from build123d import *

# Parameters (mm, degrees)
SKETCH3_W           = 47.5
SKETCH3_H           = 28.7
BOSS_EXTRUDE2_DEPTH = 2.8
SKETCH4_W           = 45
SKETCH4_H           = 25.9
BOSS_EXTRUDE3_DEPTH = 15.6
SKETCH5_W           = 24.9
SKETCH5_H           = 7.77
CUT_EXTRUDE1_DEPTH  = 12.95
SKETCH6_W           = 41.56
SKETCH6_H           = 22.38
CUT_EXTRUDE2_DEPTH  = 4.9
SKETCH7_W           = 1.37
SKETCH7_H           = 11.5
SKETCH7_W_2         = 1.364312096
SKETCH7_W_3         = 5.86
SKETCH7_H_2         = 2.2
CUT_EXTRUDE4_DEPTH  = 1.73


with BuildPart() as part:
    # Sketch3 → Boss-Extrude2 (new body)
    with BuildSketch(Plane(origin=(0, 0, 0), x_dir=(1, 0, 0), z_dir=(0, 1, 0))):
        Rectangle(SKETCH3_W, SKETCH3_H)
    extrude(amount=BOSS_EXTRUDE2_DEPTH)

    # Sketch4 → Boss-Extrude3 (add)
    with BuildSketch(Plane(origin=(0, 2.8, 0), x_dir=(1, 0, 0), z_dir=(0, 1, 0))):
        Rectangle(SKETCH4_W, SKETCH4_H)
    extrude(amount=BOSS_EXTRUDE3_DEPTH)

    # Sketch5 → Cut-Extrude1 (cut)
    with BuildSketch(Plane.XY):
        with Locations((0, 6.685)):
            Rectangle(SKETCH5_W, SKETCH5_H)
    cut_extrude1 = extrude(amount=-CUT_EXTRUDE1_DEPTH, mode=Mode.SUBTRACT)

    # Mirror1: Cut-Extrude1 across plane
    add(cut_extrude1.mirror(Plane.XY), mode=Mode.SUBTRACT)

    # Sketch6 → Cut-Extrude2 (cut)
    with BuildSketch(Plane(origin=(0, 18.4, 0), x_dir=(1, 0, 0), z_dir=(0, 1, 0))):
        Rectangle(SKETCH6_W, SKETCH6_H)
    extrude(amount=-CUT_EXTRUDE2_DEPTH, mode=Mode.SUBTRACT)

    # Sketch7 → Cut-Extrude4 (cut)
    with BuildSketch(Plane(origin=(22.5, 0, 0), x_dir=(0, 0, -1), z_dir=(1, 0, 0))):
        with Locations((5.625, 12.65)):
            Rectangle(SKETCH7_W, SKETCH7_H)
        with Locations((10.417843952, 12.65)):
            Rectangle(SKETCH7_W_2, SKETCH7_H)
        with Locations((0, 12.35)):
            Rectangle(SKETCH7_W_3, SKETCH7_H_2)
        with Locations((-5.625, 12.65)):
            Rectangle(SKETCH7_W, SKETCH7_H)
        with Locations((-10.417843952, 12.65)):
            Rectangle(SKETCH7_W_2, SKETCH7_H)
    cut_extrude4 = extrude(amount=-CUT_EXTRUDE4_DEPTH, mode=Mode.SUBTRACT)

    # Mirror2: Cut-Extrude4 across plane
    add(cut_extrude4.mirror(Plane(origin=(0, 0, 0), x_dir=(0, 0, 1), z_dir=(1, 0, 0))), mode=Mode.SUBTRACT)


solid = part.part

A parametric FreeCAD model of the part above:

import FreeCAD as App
import Part
import Sketcher

doc = App.newDocument("Part")
body = doc.addObject("PartDesign::Body", "Body")

sketch1 = body.newObject("Sketcher::SketchObject", "Sketch")
sketch1.AttachmentSupport = (doc.getObject("XZ_Plane"), [""])
sketch1.MapMode = "FlatFace"
sketch1.addGeometry([
    Part.LineSegment(App.Vector(-24, -14, 0), App.Vector(-24, 14, 0)),
    Part.LineSegment(App.Vector(-24, 14, 0), App.Vector(24, 14, 0)),
    Part.LineSegment(App.Vector(24, 14, 0), App.Vector(24, -14, 0)),
    Part.LineSegment(App.Vector(24, -14, 0), App.Vector(-24, -14, 0)),
], False)
sketch1.addConstraint([
    Sketcher.Constraint("Coincident", 0, 2, 1, 1),
    Sketcher.Constraint("Coincident", 1, 2, 2, 1),
    Sketcher.Constraint("Coincident", 2, 2, 3, 1),
    Sketcher.Constraint("Coincident", 3, 2, 0, 1),
    Sketcher.Constraint("Vertical", 0),
    Sketcher.Constraint("Horizontal", 1),
    Sketcher.Constraint("Vertical", 2),
    Sketcher.Constraint("Horizontal", 3),
    Sketcher.Constraint("Symmetric", 0, 2, 2, 2, -1, 1),
    Sketcher.Constraint("DistanceX", 1, 1, 1, 2, 47.5),
    Sketcher.Constraint("DistanceY", 0, 1, 0, 2, 28.7),
])
pad1 = body.newObject("PartDesign::Pad", "Pad")
pad1.Profile = sketch1
pad1.Length = 2.8
pad1.Reversed = True

sketch2 = body.newObject("Sketcher::SketchObject", "Sketch001")
sketch2.AttachmentSupport = (doc.getObject("XZ_Plane"), [""])
sketch2.MapMode = "FlatFace"
sketch2.AttachmentOffset = App.Placement(App.Vector(0, 0, -2.8), App.Rotation())
sketch2.addGeometry([
    Part.LineSegment(App.Vector(-22, -13, 0), App.Vector(-22, 13, 0)),
    Part.LineSegment(App.Vector(-22, 13, 0), App.Vector(22, 13, 0)),
    Part.LineSegment(App.Vector(22, 13, 0), App.Vector(22, -13, 0)),
    Part.LineSegment(App.Vector(22, -13, 0), App.Vector(-22, -13, 0)),
], False)
sketch2.addConstraint([
    Sketcher.Constraint("Coincident", 0, 2, 1, 1),
    Sketcher.Constraint("Coincident", 1, 2, 2, 1),
    Sketcher.Constraint("Coincident", 2, 2, 3, 1),
    Sketcher.Constraint("Coincident", 3, 2, 0, 1),
    Sketcher.Constraint("Vertical", 0),
    Sketcher.Constraint("Horizontal", 1),
    Sketcher.Constraint("Vertical", 2),
    Sketcher.Constraint("Horizontal", 3),
    Sketcher.Constraint("Symmetric", 0, 2, 2, 2, -1, 1),
    Sketcher.Constraint("DistanceX", 1, 1, 1, 2, 45.0),
    Sketcher.Constraint("DistanceY", 0, 1, 0, 2, 25.9),
])
pad2 = body.newObject("PartDesign::Pad", "Pad001")
pad2.Profile = sketch2
pad2.Length = 15.6
pad2.Reversed = True

sketch3 = body.newObject("Sketcher::SketchObject", "Sketch002")
sketch3.AttachmentSupport = (doc.getObject("XY_Plane"), [""])
sketch3.MapMode = "FlatFace"
sketch3.addGeometry([
    Part.LineSegment(App.Vector(-12, 11, 0), App.Vector(-12, 3, 0)),
    Part.LineSegment(App.Vector(-12, 3, 0), App.Vector(12, 3, 0)),
    Part.LineSegment(App.Vector(12, 3, 0), App.Vector(12, 11, 0)),
    Part.LineSegment(App.Vector(12, 11, 0), App.Vector(-12, 11, 0)),
], False)
sketch3.addConstraint([
    Sketcher.Constraint("Coincident", 0, 2, 1, 1),
    Sketcher.Constraint("Coincident", 1, 2, 2, 1),
    Sketcher.Constraint("Coincident", 2, 2, 3, 1),
    Sketcher.Constraint("Coincident", 3, 2, 0, 1),
    Sketcher.Constraint("Vertical", 0),
    Sketcher.Constraint("Horizontal", 1),
    Sketcher.Constraint("Vertical", 2),
    Sketcher.Constraint("Horizontal", 3),
    Sketcher.Constraint("DistanceX", 1, 1, 1, 2, 24.9),
    Sketcher.Constraint("DistanceY", 0, 2, 0, 1, 7.77),
    Sketcher.Constraint("DistanceY", -1, 1, 0, 2, 2.8),
    Sketcher.Constraint("DistanceX", 0, 2, -1, 1, 12.45),
])
pocket1 = body.newObject("PartDesign::Pocket", "Pocket")
pocket1.Profile = sketch3
pocket1.Length = 12.95
doc.recompute()

mirrored = body.newObject("PartDesign::Mirrored", "Mirrored")
mirrored.Originals = [pocket1]
mirrored.MirrorPlane = (doc.getObject("XY_Plane"), [""])
body.Tip = mirrored

sketch4 = body.newObject("Sketcher::SketchObject", "Sketch003")
sketch4.AttachmentSupport = (doc.getObject("XZ_Plane"), [""])
sketch4.MapMode = "FlatFace"
sketch4.AttachmentOffset = App.Placement(App.Vector(0, 0, -18.4), App.Rotation())
sketch4.addGeometry([
    Part.LineSegment(App.Vector(-21, -11, 0), App.Vector(-21, 11, 0)),
    Part.LineSegment(App.Vector(-21, 11, 0), App.Vector(21, 11, 0)),
    Part.LineSegment(App.Vector(21, 11, 0), App.Vector(21, -11, 0)),
    Part.LineSegment(App.Vector(21, -11, 0), App.Vector(-21, -11, 0)),
], False)
sketch4.addConstraint([
    Sketcher.Constraint("Coincident", 0, 2, 1, 1),
    Sketcher.Constraint("Coincident", 1, 2, 2, 1),
    Sketcher.Constraint("Coincident", 2, 2, 3, 1),
    Sketcher.Constraint("Coincident", 3, 2, 0, 1),
    Sketcher.Constraint("Vertical", 0),
    Sketcher.Constraint("Horizontal", 1),
    Sketcher.Constraint("Vertical", 2),
    Sketcher.Constraint("Horizontal", 3),
    Sketcher.Constraint("Symmetric", 0, 2, 2, 2, -1, 1),
    Sketcher.Constraint("DistanceX", 1, 1, 1, 2, 41.56),
    Sketcher.Constraint("DistanceY", 0, 1, 0, 2, 22.38),
])
pocket2 = body.newObject("PartDesign::Pocket", "Pocket001")
pocket2.Profile = sketch4
pocket2.Length = 4.9
pocket2.Reversed = True

sketch5 = body.newObject("Sketcher::SketchObject", "Sketch004")
sketch5.AttachmentSupport = (doc.getObject("YZ_Plane"), [""])
sketch5.MapMode = "FlatFace"
sketch5.AttachmentOffset = App.Placement(App.Vector(0, 0, 22.5), App.Rotation())
sketch5.addGeometry([
    Part.LineSegment(App.Vector(18.4, -4.9, 0), App.Vector(6.9, -4.9, 0)),
    Part.LineSegment(App.Vector(6.9, -4.9, 0), App.Vector(6.9, -6.3, 0)),
    Part.LineSegment(App.Vector(6.9, -6.3, 0), App.Vector(18.4, -6.3, 0)),
    Part.LineSegment(App.Vector(18.4, -6.3, 0), App.Vector(18.4, -4.9, 0)),
    Part.LineSegment(App.Vector(18.4, -9.7, 0), App.Vector(6.9, -9.7, 0)),
    Part.LineSegment(App.Vector(6.9, -9.7, 0), App.Vector(6.9, -11.1, 0)),
    Part.LineSegment(App.Vector(6.9, -11.1, 0), App.Vector(18.4, -11.1, 0)),
    Part.LineSegment(App.Vector(18.4, -11.1, 0), App.Vector(18.4, -9.7, 0)),
    Part.LineSegment(App.Vector(13.4, 2.9, 0), App.Vector(11.2, 2.9, 0)),
    Part.LineSegment(App.Vector(11.2, 2.9, 0), App.Vector(11.2, -2.9, 0)),
    Part.LineSegment(App.Vector(11.2, -2.9, 0), App.Vector(13.4, -2.9, 0)),
    Part.LineSegment(App.Vector(13.4, -2.9, 0), App.Vector(13.4, 2.9, 0)),
    Part.LineSegment(App.Vector(18.4, 6.3, 0), App.Vector(6.9, 6.3, 0)),
    Part.LineSegment(App.Vector(6.9, 6.3, 0), App.Vector(6.9, 4.9, 0)),
    Part.LineSegment(App.Vector(6.9, 4.9, 0), App.Vector(18.4, 4.9, 0)),
    Part.LineSegment(App.Vector(18.4, 4.9, 0), App.Vector(18.4, 6.3, 0)),
    Part.LineSegment(App.Vector(18.4, 11.1, 0), App.Vector(6.9, 11.1, 0)),
    Part.LineSegment(App.Vector(6.9, 11.1, 0), App.Vector(6.9, 9.7, 0)),
    Part.LineSegment(App.Vector(6.9, 9.7, 0), App.Vector(18.4, 9.7, 0)),
    Part.LineSegment(App.Vector(18.4, 9.7, 0), App.Vector(18.4, 11.1, 0)),
], False)
sketch5.addConstraint([
    Sketcher.Constraint("Coincident", 0, 2, 1, 1),
    Sketcher.Constraint("Coincident", 1, 2, 2, 1),
    Sketcher.Constraint("Coincident", 2, 2, 3, 1),
    Sketcher.Constraint("Coincident", 3, 2, 0, 1),
    Sketcher.Constraint("Coincident", 4, 2, 5, 1),
    Sketcher.Constraint("Coincident", 5, 2, 6, 1),
    Sketcher.Constraint("Coincident", 6, 2, 7, 1),
    Sketcher.Constraint("Coincident", 7, 2, 4, 1),
    Sketcher.Constraint("Coincident", 8, 2, 9, 1),
    Sketcher.Constraint("Coincident", 9, 2, 10, 1),
    Sketcher.Constraint("Coincident", 10, 2, 11, 1),
    Sketcher.Constraint("Coincident", 11, 2, 8, 1),
    Sketcher.Constraint("Coincident", 12, 2, 13, 1),
    Sketcher.Constraint("Coincident", 13, 2, 14, 1),
    Sketcher.Constraint("Coincident", 14, 2, 15, 1),
    Sketcher.Constraint("Coincident", 15, 2, 12, 1),
    Sketcher.Constraint("Coincident", 16, 2, 17, 1),
    Sketcher.Constraint("Coincident", 17, 2, 18, 1),
    Sketcher.Constraint("Coincident", 18, 2, 19, 1),
    Sketcher.Constraint("Coincident", 19, 2, 16, 1),
    Sketcher.Constraint("Horizontal", 0),
    Sketcher.Constraint("Vertical", 1),
    Sketcher.Constraint("Horizontal", 2),
    Sketcher.Constraint("Vertical", 3),
    Sketcher.Constraint("Horizontal", 4),
    Sketcher.Constraint("Vertical", 5),
    Sketcher.Constraint("Horizontal", 6),
    Sketcher.Constraint("Vertical", 7),
    Sketcher.Constraint("Horizontal", 8),
    Sketcher.Constraint("Vertical", 9),
    Sketcher.Constraint("Horizontal", 10),
    Sketcher.Constraint("Vertical", 11),
    Sketcher.Constraint("Horizontal", 12),
    Sketcher.Constraint("Vertical", 13),
    Sketcher.Constraint("Horizontal", 14),
    Sketcher.Constraint("Vertical", 15),
    Sketcher.Constraint("Horizontal", 16),
    Sketcher.Constraint("Vertical", 17),
    Sketcher.Constraint("Horizontal", 18),
    Sketcher.Constraint("Vertical", 19),
    Sketcher.Constraint("Symmetric", 1, 2, 12, 2, -1),
    Sketcher.Constraint("Symmetric", 3, 2, 14, 2, -1),
    Sketcher.Constraint("Symmetric", 5, 2, 16, 2, -1),
    Sketcher.Constraint("Symmetric", 7, 2, 18, 2, -1),
    Sketcher.Constraint("Vertical", 1, 2, 4, 2),
    Sketcher.Constraint("Vertical", 3, 2, 6, 2),
    Sketcher.Constraint("DistanceX", 0, 2, 0, 1, 11.5),
    Sketcher.Constraint("DistanceX", 8, 2, 8, 1, 2.2),
    Sketcher.Constraint("DistanceY", 1, 2, 1, 1, 1.37),
    Sketcher.Constraint("DistanceY", 9, 2, 9, 1, 5.86),
    Sketcher.Constraint("DistanceX", -1, 1, 0, 2, 6.9),
    Sketcher.Constraint("DistanceY", 5, 2, -1, 1, 11.1),
    Sketcher.Constraint("DistanceY", 0, 2, -1, 1, 4.94),
    Sketcher.Constraint("DistanceX", -1, 1, 8, 2, 11.25),
    Sketcher.Constraint("DistanceY", -1, 1, 8, 2, 2.93),
    Sketcher.Constraint("DistanceY", 5, 2, 5, 1, 1.364312),
])
pocket3 = body.newObject("PartDesign::Pocket", "Pocket002")
pocket3.Profile = sketch5
pocket3.Length = 1.73
doc.recompute()

mirrored2 = body.newObject("PartDesign::Mirrored", "Mirrored001")
mirrored2.Originals = [pocket3]
mirrored2.MirrorPlane = (doc.getObject("YZ_Plane"), [""])
body.Tip = mirrored2

doc.recompute()
